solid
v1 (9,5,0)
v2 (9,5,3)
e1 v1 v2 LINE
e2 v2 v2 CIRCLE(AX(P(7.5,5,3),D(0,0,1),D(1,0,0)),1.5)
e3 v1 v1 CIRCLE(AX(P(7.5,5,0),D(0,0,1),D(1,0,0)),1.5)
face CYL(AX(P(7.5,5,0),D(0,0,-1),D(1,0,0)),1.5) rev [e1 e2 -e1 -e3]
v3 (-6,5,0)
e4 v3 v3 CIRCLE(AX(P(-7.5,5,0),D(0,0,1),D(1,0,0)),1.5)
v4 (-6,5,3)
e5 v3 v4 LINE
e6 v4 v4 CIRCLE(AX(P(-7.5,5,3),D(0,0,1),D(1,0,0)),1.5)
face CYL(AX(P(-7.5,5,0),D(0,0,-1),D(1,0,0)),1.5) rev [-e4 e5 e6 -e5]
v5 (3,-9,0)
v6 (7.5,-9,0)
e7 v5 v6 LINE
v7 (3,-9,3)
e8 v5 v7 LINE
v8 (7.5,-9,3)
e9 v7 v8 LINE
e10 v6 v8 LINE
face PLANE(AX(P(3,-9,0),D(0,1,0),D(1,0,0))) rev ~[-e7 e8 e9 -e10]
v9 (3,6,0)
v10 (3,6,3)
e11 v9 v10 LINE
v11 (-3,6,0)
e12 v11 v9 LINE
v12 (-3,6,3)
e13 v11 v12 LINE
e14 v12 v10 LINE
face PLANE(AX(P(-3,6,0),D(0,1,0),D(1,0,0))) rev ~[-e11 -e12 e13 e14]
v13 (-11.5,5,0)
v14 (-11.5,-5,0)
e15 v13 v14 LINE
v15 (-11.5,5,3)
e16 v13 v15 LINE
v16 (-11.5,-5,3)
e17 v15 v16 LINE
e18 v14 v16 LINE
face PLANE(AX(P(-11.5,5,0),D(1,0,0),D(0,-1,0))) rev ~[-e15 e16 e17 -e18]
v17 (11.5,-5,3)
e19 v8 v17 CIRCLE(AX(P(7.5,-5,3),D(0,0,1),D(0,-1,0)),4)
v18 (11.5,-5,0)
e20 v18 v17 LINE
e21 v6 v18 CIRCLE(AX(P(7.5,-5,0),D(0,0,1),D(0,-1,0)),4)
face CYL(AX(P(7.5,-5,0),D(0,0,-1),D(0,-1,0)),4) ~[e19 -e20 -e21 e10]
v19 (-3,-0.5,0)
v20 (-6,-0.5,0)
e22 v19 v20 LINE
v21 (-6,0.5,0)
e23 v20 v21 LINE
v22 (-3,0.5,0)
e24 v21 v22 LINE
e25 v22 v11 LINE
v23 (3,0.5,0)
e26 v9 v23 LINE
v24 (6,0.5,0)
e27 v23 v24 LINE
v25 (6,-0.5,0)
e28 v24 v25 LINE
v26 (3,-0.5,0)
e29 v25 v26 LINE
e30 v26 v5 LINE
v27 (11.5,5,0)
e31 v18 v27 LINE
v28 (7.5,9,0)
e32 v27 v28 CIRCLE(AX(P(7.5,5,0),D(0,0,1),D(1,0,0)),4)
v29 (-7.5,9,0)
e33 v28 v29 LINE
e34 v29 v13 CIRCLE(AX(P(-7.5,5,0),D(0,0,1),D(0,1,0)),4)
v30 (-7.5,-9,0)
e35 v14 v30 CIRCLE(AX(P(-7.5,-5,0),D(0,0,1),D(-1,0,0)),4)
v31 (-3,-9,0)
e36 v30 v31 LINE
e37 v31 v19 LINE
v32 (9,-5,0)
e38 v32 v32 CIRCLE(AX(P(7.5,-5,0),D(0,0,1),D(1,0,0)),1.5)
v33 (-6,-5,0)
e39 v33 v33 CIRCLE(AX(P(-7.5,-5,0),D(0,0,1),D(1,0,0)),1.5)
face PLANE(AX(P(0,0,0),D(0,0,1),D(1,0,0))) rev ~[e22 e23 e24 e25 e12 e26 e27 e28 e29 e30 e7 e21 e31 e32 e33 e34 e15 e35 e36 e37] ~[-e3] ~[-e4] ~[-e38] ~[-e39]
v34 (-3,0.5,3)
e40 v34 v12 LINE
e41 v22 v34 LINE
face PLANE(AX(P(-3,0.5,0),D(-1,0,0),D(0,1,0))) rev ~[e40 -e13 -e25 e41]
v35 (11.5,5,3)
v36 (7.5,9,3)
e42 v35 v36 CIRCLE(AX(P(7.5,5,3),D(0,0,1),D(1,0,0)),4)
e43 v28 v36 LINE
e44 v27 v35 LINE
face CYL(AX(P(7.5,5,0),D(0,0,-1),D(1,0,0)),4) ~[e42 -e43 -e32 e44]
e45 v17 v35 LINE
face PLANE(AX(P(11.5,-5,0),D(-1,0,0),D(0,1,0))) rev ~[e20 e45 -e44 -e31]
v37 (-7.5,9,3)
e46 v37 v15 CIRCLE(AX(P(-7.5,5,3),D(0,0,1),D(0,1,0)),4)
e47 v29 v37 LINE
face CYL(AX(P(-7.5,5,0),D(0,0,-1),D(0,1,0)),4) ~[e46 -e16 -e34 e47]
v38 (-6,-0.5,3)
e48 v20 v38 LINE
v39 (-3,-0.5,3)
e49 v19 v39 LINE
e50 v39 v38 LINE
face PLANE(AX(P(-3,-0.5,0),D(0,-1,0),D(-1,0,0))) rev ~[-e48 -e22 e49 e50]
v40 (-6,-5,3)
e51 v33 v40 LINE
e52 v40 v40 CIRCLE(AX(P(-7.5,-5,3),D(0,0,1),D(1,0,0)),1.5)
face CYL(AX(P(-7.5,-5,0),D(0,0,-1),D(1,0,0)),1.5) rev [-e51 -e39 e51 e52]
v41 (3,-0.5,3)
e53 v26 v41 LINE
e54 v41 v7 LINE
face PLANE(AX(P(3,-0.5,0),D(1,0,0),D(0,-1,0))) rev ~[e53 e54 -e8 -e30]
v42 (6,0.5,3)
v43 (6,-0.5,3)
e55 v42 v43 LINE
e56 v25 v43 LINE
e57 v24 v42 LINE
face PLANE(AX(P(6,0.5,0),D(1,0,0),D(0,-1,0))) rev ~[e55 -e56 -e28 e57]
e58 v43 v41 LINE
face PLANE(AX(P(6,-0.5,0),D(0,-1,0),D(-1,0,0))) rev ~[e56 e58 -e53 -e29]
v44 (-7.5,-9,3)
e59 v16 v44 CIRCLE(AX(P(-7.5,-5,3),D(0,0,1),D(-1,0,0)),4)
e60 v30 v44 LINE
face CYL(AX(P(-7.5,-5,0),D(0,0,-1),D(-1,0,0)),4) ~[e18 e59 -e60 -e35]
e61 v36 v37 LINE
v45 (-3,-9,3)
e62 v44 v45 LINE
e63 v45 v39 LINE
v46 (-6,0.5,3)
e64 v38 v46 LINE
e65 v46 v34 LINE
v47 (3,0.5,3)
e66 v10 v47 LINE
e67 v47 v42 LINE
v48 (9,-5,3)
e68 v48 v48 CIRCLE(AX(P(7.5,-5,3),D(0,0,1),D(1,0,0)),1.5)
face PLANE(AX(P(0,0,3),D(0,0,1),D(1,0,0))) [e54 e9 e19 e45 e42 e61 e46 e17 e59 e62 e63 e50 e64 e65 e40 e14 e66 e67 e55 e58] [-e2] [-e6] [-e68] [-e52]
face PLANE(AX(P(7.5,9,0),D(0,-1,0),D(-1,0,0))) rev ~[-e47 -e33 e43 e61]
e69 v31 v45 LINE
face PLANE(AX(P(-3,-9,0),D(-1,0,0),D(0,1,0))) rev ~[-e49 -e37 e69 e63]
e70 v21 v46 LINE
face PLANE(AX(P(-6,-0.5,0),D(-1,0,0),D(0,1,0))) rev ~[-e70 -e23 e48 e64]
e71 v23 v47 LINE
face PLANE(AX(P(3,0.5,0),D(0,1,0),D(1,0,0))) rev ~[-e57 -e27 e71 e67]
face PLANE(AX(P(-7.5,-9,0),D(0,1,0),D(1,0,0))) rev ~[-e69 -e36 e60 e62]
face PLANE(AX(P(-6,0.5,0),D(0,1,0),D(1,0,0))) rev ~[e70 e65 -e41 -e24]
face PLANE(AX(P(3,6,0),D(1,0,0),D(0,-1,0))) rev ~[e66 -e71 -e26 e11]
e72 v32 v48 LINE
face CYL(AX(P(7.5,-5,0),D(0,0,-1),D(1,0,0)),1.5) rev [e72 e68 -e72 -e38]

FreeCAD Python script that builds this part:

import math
import FreeCAD as App
import Part
import Sketcher

doc = App.newDocument("Part")
params = doc.addObject("Spreadsheet::Sheet", "Params")
for row, (alias, value) in enumerate([
    ("sketch1_diameter", "3 mm"),
    ("sketch1_radius", "4 mm"),
    ("sketch1_width", "3 mm"),
    ("sketch1_width2", "6 mm"),
    ("sketch1_width3", "15 mm"),
    ("pad1_length", "3 mm"),
], start=1):
    params.set(f"A{row}", alias)
    params.set(f"B{row}", "=" + value)
    params.setAlias(f"B{row}", alias)

body = doc.addObject("PartDesign::Body", "Body")

# Sketch on XY plane
sketch1 = body.newObject("Sketcher::SketchObject", "Sketch")
sketch1.AttachmentSupport = (doc.getObject("XY_Plane"), [""])
sketch1.MapMode = "FlatFace"
sketch1.addGeometry(Part.LineSegment(App.Vector(-7.5, -9, 0), App.Vector(-3, -9, 0)), False)
sketch1.addGeometry(Part.LineSegment(App.Vector(-3, -9, 0), App.Vector(-3, -0.5, 0)), False)
sketch1.addGeometry(Part.LineSegment(App.Vector(-3, -0.5, 0), App.Vector(-6, -0.5, 0)), False)
sketch1.addGeometry(Part.LineSegment(App.Vector(-6, -0.5, 0), App.Vector(-6, 0.5, 0)), False)
sketch1.addGeometry(Part.LineSegment(App.Vector(-6, 0.5, 0), App.Vector(-3, 0.5, 0)), False)
sketch1.addGeometry(Part.LineSegment(App.Vector(-3, 0.5, 0), App.Vector(-3, 6, 0)), False)
sketch1.addGeometry(Part.LineSegment(App.Vector(-3, 6, 0), App.Vector(3, 6, 0)), False)
sketch1.addGeometry(Part.LineSegment(App.Vector(3, 6, 0), App.Vector(3, 0.5, 0)), False)
sketch1.addGeometry(Part.LineSegment(App.Vector(3, 0.5, 0), App.Vector(6, 0.5, 0)), False)
sketch1.addGeometry(Part.LineSegment(App.Vector(6, 0.5, 0), App.Vector(6, -0.5, 0)), False)
sketch1.addGeometry(Part.LineSegment(App.Vector(6, -0.5, 0), App.Vector(3, -0.5, 0)), False)
sketch1.addGeometry(Part.LineSegment(App.Vector(3, -0.5, 0), App.Vector(3, -9, 0)), False)
sketch1.addGeometry(Part.LineSegment(App.Vector(3, -9, 0), App.Vector(7.5, -9, 0)), False)
sketch1.addGeometry(Part.ArcOfCircle(Part.Circle(App.Vector(7.5, -5, 0), App.Vector(0, 0, 1), 4), math.radians(-90), math.radians(0)), False)
sketch1.addGeometry(Part.LineSegment(App.Vector(11.5, -5, 0), App.Vector(11.5, 5, 0)), False)
sketch1.addGeometry(Part.ArcOfCircle(Part.Circle(App.Vector(7.5, 5, 0), App.Vector(0, 0, 1), 4), math.radians(0), math.radians(90)), False)
sketch1.addGeometry(Part.LineSegment(App.Vector(7.5, 9, 0), App.Vector(-7.5, 9, 0)), False)
sketch1.addGeometry(Part.ArcOfCircle(Part.Circle(App.Vector(-7.5, 5, 0), App.Vector(0, 0, 1), 4), math.radians(90), math.radians(180)), False)
sketch1.addGeometry(Part.LineSegment(App.Vector(-11.5, 5, 0), App.Vector(-11.5, -5, 0)), False)
sketch1.addGeometry(Part.ArcOfCircle(Part.Circle(App.Vector(-7.5, -5, 0), App.Vector(0, 0, 1), 4), math.radians(180), math.radians(270)), False)
sketch1.addGeometry(Part.Circle(App.Vector(-7.5, -5, 0), App.Vector(0, 0, 1), 1.5), False)
sketch1.addGeometry(Part.Circle(App.Vector(7.5, -5, 0), App.Vector(0, 0, 1), 1.5), False)
sketch1.addGeometry(Part.Circle(App.Vector(-7.5, 5, 0), App.Vector(0, 0, 1), 1.5), False)
sketch1.addGeometry(Part.Circle(App.Vector(7.5, 5, 0), App.Vector(0, 0, 1), 1.5), False)
sketch1.addConstraint(Sketcher.Constraint("Coincident", 0, 2, 1, 1))
sketch1.addConstraint(Sketcher.Constraint("Coincident", 1, 2, 2, 1))
sketch1.addConstraint(Sketcher.Constraint("Coincident", 2, 2, 3, 1))
sketch1.addConstraint(Sketcher.Constraint("Coincident", 3, 2, 4, 1))
sketch1.addConstraint(Sketcher.Constraint("Coincident", 4, 2, 5, 1))
sketch1.addConstraint(Sketcher.Constraint("Coincident", 5, 2, 6, 1))
sketch1.addConstraint(Sketcher.Constraint("Coincident", 6, 2, 7, 1))
sketch1.addConstraint(Sketcher.Constraint("Coincident", 7, 2, 8, 1))
sketch1.addConstraint(Sketcher.Constraint("Coincident", 8, 2, 9, 1))
sketch1.addConstraint(Sketcher.Constraint("Coincident", 9, 2, 10, 1))
sketch1.addConstraint(Sketcher.Constraint("Coincident", 10, 2, 11, 1))
sketch1.addConstraint(Sketcher.Constraint("Coincident", 11, 2, 12, 1))
sketch1.addConstraint(Sketcher.Constraint("Tangent", 12, 2, 13, 1))
sketch1.addConstraint(Sketcher.Constraint("Tangent", 13, 2, 14, 1))
sketch1.addConstraint(Sketcher.Constraint("Tangent", 14, 2, 15, 1))
sketch1.addConstraint(Sketcher.Constraint("Tangent", 15, 2, 16, 1))
sketch1.addConstraint(Sketcher.Constraint("Tangent", 16, 2, 17, 1))
sketch1.addConstraint(Sketcher.Constraint("Tangent", 17, 2, 18, 1))
sketch1.addConstraint(Sketcher.Constraint("Tangent", 18, 2, 19, 1))
sketch1.addConstraint(Sketcher.Constraint("Tangent", 19, 2, 0, 1))
sketch1.addConstraint(Sketcher.Constraint("Horizontal", 0))
sketch1.addConstraint(Sketcher.Constraint("Vertical", 1))
sketch1.addConstraint(Sketcher.Constraint("Horizontal", 2))
sketch1.addConstraint(Sketcher.Constraint("Vertical", 3))
sketch1.addConstraint(Sketcher.Constraint("Horizontal", 4))
sketch1.addConstraint(Sketcher.Constraint("Vertical", 5))
sketch1.addConstraint(Sketcher.Constraint("Horizontal", 6))
sketch1.addConstraint(Sketcher.Constraint("Vertical", 7))
sketch1.addConstraint(Sketcher.Constraint("Horizontal", 8))
sketch1.addConstraint(Sketcher.Constraint("Vertical", 9))
sketch1.addConstraint(Sketcher.Constraint("Horizontal", 10))
sketch1.addConstraint(Sketcher.Constraint("Vertical", 11))
sketch1.addConstraint(Sketcher.Constraint("Horizontal", 12))
sketch1.addConstraint(Sketcher.Constraint("Vertical", 14))
sketch1.addConstraint(Sketcher.Constraint("Horizontal", 16))
sketch1.addConstraint(Sketcher.Constraint("Vertical", 18))
sketch1.addConstraint(Sketcher.Constraint("Coincident", 20, 3, 19, 3))
sketch1.addConstraint(Sketcher.Constraint("Coincident", 21, 3, 13, 3))
sketch1.addConstraint(Sketcher.Constraint("Coincident", 22, 3, 17, 3))
sketch1.addConstraint(Sketcher.Constraint("Coincident", 23, 3, 15, 3))
sketch1.addConstraint(Sketcher.Constraint("Equal", 13, 15))
sketch1.addConstraint(Sketcher.Constraint("Equal", 15, 17))
sketch1.addConstraint(Sketcher.Constraint("Equal", 17, 19))
sketch1.addConstraint(Sketcher.Constraint("Equal", 20, 21))
sketch1.addConstraint(Sketcher.Constraint("Equal", 21, 22))
sketch1.addConstraint(Sketcher.Constraint("Equal", 22, 23))
sketch1.addConstraint(Sketcher.Constraint("Symmetric", 13, 3, 17, 3, -1, 1))
sketch1.addConstraint(Sketcher.Constraint("Symmetric", 1, 2, 7, 2, -1, 1))
sketch1.addConstraint(Sketcher.Constraint("Symmetric", 3, 2, 9, 2, -1, 1))
sketch1.addConstraint(Sketcher.Constraint("Symmetric", 4, 2, 7, 2, -2))
sketch1.addConstraint(Sketcher.Constraint("Symmetric", 0, 2, 11, 2, -2))
sketch1.addConstraint(Sketcher.Constraint("Diameter", 20, 3.0))
sketch1.addConstraint(Sketcher.Constraint("Radius", 13, 4.0))
sketch1.addConstraint(Sketcher.Constraint("DistanceX", 2, 2, 2, 1, 3.0))
sketch1.addConstraint(Sketcher.Constraint("DistanceX", 6, 1, 6, 2, 6.0))
sketch1.addConstraint(Sketcher.Constraint("DistanceX", 16, 2, 16, 1, 15.0))
sketch1.addConstraint(Sketcher.Constraint("DistanceY", 3, 1, 3, 2, 1.0))
sketch1.addConstraint(Sketcher.Constraint("DistanceY", 14, 1, 14, 2, 10.0))
sketch1.addConstraint(Sketcher.Constraint("DistanceY", 5, 1, 5, 2, 5.5))
sketch1.setExpression("Constraints[51]", "Params.sketch1_diameter")
sketch1.setExpression("Constraints[52]", "Params.sketch1_radius")
sketch1.setExpression("Constraints[53]", "Params.sketch1_width")
sketch1.setExpression("Constraints[54]", "Params.sketch1_width2")
sketch1.setExpression("Constraints[55]", "Params.sketch1_width3")
pad1 = body.newObject("PartDesign::Pad", "Pad")
pad1.Profile = sketch1
pad1.setExpression("Length", "Params.pad1_length")

doc.recompute()
